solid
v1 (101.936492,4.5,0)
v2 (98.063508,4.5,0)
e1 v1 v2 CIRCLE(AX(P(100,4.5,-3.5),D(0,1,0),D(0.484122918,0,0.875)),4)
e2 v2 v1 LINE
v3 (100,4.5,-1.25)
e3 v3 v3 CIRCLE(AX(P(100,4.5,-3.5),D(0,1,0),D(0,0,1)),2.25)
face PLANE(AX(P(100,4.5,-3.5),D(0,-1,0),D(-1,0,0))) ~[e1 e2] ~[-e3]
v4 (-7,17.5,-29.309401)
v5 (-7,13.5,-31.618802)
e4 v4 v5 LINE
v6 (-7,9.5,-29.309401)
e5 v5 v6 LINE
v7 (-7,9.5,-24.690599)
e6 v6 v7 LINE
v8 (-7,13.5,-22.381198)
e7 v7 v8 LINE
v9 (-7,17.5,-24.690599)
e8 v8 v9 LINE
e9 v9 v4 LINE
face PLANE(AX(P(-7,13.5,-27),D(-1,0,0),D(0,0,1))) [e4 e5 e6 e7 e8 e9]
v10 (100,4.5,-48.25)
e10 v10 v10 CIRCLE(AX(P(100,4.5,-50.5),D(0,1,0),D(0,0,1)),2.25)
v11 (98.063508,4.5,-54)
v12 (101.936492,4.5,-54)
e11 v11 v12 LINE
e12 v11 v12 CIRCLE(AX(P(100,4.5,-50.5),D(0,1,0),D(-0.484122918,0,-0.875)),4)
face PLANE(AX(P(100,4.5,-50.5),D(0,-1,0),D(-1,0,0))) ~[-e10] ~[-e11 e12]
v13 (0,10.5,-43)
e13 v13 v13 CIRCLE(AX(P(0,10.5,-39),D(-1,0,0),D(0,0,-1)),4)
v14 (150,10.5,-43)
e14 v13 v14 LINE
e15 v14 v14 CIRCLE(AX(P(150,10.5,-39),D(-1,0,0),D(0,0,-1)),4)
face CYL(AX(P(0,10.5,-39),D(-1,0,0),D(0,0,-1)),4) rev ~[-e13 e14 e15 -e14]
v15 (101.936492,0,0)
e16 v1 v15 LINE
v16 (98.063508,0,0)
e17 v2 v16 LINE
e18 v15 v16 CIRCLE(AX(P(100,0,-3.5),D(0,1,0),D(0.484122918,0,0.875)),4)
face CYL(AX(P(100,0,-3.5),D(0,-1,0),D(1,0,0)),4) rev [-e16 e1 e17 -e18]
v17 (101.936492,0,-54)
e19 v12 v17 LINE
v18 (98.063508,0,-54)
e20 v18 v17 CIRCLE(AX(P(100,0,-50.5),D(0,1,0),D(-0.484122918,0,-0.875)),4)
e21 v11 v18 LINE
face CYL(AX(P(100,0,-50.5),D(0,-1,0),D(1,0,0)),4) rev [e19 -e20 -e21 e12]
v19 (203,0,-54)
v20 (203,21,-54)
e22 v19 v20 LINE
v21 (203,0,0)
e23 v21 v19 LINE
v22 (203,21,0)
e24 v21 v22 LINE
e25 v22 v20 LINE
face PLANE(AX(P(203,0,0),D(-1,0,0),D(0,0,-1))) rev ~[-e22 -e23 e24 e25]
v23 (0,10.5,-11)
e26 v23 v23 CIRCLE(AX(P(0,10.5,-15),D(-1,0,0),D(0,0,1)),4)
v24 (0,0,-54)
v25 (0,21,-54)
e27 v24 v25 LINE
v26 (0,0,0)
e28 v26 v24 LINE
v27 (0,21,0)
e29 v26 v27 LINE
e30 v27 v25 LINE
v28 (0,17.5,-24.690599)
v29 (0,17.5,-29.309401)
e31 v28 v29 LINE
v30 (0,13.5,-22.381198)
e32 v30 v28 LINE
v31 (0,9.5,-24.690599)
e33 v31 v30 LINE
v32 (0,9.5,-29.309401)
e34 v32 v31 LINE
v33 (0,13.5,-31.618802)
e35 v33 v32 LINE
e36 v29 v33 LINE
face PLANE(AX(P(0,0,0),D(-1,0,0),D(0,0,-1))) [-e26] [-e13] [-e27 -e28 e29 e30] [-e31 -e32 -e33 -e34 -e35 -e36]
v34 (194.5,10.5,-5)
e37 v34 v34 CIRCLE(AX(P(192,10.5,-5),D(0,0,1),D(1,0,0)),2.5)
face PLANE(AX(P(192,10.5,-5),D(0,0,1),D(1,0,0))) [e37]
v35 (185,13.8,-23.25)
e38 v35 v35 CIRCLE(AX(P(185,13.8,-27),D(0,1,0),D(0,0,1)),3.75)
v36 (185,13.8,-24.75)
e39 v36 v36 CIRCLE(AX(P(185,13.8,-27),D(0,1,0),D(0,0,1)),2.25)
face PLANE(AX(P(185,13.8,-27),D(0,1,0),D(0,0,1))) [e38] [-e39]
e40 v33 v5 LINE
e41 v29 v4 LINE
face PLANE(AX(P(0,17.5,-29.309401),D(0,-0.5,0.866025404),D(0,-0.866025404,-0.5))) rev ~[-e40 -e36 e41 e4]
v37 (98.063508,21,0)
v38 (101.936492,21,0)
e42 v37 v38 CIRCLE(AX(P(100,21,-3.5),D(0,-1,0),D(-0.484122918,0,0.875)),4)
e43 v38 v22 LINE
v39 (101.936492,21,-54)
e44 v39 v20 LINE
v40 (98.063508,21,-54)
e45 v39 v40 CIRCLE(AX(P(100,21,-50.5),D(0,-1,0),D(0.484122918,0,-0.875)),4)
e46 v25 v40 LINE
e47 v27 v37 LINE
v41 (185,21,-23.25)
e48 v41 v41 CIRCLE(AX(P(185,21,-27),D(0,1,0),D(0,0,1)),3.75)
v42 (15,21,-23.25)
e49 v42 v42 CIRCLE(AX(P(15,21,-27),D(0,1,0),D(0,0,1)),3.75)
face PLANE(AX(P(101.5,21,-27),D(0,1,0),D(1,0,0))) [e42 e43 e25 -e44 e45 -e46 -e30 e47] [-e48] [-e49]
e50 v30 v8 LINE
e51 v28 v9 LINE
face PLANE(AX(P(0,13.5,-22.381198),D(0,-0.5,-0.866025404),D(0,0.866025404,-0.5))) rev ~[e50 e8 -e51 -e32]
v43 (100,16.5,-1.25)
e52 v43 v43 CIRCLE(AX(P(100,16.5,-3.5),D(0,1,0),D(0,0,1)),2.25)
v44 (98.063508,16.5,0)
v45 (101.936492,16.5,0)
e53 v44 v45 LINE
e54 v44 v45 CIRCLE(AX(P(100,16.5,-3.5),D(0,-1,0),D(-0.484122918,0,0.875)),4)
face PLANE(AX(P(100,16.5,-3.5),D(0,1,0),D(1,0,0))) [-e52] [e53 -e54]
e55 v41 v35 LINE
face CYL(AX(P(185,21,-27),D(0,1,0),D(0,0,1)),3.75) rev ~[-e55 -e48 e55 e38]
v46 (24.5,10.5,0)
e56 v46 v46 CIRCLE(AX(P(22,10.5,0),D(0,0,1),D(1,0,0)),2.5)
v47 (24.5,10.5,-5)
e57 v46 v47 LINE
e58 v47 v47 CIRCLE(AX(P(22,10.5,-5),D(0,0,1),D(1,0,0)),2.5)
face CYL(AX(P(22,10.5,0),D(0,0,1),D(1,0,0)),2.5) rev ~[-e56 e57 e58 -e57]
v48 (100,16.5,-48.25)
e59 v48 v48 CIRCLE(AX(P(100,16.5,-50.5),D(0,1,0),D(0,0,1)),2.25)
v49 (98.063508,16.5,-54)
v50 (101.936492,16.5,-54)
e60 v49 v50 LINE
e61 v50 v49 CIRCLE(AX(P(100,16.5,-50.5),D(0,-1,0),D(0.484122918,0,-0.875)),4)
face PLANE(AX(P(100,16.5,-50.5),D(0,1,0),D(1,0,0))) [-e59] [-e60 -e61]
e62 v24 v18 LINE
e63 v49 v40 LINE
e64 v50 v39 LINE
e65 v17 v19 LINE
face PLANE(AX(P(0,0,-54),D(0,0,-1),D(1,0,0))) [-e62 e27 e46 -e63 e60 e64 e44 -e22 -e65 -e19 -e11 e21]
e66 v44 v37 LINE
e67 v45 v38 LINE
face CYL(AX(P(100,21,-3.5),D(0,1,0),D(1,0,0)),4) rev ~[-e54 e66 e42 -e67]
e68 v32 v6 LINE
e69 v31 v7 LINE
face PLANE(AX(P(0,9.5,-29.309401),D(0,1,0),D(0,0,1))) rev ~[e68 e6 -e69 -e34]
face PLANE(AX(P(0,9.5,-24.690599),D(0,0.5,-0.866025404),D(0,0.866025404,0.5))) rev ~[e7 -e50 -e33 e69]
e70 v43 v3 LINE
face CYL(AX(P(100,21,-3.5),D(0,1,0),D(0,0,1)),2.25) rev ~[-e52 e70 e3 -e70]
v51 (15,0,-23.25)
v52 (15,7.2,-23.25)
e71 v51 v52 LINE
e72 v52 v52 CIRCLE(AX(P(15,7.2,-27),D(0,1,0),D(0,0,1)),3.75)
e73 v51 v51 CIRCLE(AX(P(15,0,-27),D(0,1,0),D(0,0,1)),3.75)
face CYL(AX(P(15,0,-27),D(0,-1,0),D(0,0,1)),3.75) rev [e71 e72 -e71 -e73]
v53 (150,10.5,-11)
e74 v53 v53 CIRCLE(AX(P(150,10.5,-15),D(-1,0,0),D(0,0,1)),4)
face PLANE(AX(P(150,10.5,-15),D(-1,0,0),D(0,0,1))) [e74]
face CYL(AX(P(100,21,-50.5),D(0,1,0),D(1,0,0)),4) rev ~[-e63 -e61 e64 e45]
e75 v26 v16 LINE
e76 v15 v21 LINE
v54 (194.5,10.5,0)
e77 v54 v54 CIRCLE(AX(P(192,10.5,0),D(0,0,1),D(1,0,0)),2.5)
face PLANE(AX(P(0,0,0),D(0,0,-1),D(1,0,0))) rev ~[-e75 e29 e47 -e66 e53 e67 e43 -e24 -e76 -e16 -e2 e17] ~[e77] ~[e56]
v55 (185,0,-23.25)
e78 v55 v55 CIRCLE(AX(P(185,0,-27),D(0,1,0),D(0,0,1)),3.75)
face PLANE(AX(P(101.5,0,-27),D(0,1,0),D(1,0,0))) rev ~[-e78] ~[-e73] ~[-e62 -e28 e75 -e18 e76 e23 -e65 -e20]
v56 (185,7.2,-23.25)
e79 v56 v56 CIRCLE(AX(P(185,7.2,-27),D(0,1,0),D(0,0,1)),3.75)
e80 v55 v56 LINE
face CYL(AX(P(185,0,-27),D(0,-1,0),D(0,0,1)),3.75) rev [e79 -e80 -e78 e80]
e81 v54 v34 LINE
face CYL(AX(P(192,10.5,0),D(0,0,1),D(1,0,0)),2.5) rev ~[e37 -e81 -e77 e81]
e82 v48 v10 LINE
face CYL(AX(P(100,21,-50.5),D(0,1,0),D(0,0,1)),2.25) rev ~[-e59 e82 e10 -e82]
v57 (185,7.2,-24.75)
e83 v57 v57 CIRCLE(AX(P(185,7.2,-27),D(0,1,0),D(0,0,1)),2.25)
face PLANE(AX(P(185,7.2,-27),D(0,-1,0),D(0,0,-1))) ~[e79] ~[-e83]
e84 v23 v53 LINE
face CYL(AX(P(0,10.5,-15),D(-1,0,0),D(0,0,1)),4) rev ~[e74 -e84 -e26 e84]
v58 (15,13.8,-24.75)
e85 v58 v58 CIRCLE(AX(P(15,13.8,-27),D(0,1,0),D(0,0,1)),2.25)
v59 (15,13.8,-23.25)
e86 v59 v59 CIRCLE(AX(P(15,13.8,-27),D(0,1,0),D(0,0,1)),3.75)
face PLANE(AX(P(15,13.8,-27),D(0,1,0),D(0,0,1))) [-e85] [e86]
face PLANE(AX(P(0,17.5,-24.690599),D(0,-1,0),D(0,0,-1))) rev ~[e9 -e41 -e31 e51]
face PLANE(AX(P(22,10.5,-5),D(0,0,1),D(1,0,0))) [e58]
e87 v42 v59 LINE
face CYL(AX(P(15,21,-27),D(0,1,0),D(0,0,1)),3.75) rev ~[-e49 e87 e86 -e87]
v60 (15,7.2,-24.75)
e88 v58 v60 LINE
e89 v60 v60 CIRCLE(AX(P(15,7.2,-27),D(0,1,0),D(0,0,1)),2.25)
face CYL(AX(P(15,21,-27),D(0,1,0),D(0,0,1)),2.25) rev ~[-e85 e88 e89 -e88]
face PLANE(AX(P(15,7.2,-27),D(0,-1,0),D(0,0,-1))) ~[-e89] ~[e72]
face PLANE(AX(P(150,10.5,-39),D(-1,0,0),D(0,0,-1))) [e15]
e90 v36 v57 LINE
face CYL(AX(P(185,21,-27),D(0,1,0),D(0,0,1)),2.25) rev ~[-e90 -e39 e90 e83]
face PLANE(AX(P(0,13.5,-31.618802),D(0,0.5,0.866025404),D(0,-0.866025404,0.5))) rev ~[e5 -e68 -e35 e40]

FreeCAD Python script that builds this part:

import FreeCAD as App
import Part
import Sketcher
from FreeCAD import Vector
Q = App.Units.Quantity

doc = App.newDocument("Part")
body = doc.addObject("PartDesign::Body", "Body")

# Sketch on XZ plane
sketch1 = doc.addObject("Sketcher::SketchObject", "Sketch")
body.addObject(sketch1)
sketch1.AttachmentSupport = (doc.XZ_Plane, [""])
sketch1.MapMode = "FlatFace"
sketch1.addGeometry([
    Part.LineSegment(Vector(0, -54, 0), Vector(0, 0, 0)),
    Part.LineSegment(Vector(0, 0, 0), Vector(203, 0, 0)),
    Part.LineSegment(Vector(203, 0, 0), Vector(203, -54, 0)),
    Part.LineSegment(Vector(203, -54, 0), Vector(0, -54, 0)),
], False)
sketch1.addConstraint([
    Sketcher.Constraint("Coincident", 0, 2, 1, 1),
    Sketcher.Constraint("Coincident", 1, 2, 2, 1),
    Sketcher.Constraint("Coincident", 2, 2, 3, 1),
    Sketcher.Constraint("Coincident", 3, 2, 0, 1),
    Sketcher.Constraint("Vertical", 0),
    Sketcher.Constraint("Horizontal", 1),
    Sketcher.Constraint("Vertical", 2),
    Sketcher.Constraint("Horizontal", 3),
    Sketcher.Constraint("Coincident", 0, 2, -1, 1),
    Sketcher.Constraint("DistanceX", 1, 1, 1, 2, Q("203 mm")),
    Sketcher.Constraint("DistanceY", 0, 1, 0, 2, Q("54 mm")),
])
pad1 = doc.addObject("PartDesign::Pad", "Pad")
body.addObject(pad1)
pad1.Profile = sketch1
pad1.Length = 21
pad1.Reversed = True

# Sketch on YZ plane
sketch2 = doc.addObject("Sketcher::SketchObject", "Sketch001")
body.addObject(sketch2)
sketch2.AttachmentSupport = (doc.YZ_Plane, [""])
sketch2.MapMode = "FlatFace"
sketch2.addGeometry([
    Part.Circle(Vector(10.5, -15, 0), Vector(0, 0, 1), 4),
    Part.Circle(Vector(10.5, -39, 0), Vector(0, 0, 1), 4),
], False)
sketch2.addConstraint([
    Sketcher.Constraint("Equal", 0, 1),
    Sketcher.Constraint("Vertical", 0, 3, 1, 3),
    Sketcher.Constraint("Diameter", 0, Q("8 mm")),
    Sketcher.Constraint("DistanceY", 0, 3, -1, 1, Q("15 mm")),
    Sketcher.Constraint("DistanceY", 1, 3, -1, 1, Q("39 mm")),
    Sketcher.Constraint("DistanceX", -1, 1, 0, 3, Q("10.5 mm")),
])
pocket1 = doc.addObject("PartDesign::Pocket", "Pocket")
body.addObject(pocket1)
pocket1.Profile = sketch2
pocket1.Length = 150
pocket1.Reversed = True

# Sketch on XZ plane
sketch3 = doc.addObject("Sketcher::SketchObject", "Sketch002")
body.addObject(sketch3)
sketch3.AttachmentSupport = (doc.XZ_Plane, [""])
sketch3.MapMode = "FlatFace"
sketch3.AttachmentOffset = App.Placement(Vector(0, 0, -21), App.Rotation())
sketch3.addGeometry([
    Part.Circle(Vector(100, -3.5, 0), Vector(0, 0, 1), 2.25),
    Part.Circle(Vector(100, -50.5, 0), Vector(0, 0, 1), 2.25),
    Part.Circle(Vector(15, -27, 0), Vector(0, 0, 1), 2.25),
    Part.Circle(Vector(185, -27, 0), Vector(0, 0, 1), 2.25),
], False)
sketch3.addConstraint([
    Sketcher.Constraint("Equal", 0, 1),
    Sketcher.Constraint("Equal", 1, 2),
    Sketcher.Constraint("Equal", 2, 3),
    Sketcher.Constraint("Horizontal", 2, 3, 3, 3),
    Sketcher.Constraint("Vertical", 0, 3, 1, 3),
    Sketcher.Constraint("Diameter", 0, Q("4.5 mm")),
    Sketcher.Constraint("DistanceX", -1, 1, 0, 3, Q("100 mm")),
    Sketcher.Constraint("DistanceX", -1, 1, 2, 3, Q("15 mm")),
    Sketcher.Constraint("DistanceY", 2, 3, -1, 1, Q("27 mm")),
    Sketcher.Constraint("DistanceX", -1, 1, 3, 3, Q("185 mm")),
    Sketcher.Constraint("DistanceY", 1, 3, 0, 3, Q("47 mm")),
    Sketcher.Constraint("DistanceY", 0, 3, -1, 1, Q("3.5 mm")),
])
pocket2 = doc.addObject("PartDesign::Pocket", "Pocket001")
body.addObject(pocket2)
pocket2.Profile = sketch3
pocket2.Type = "ThroughAll"
pocket2.Reversed = True

# Sketch on XZ plane
sketch4 = doc.addObject("Sketcher::SketchObject", "Sketch003")
body.addObject(sketch4)
sketch4.AttachmentSupport = (doc.XZ_Plane, [""])
sketch4.MapMode = "FlatFace"
sketch4.AttachmentOffset = App.Placement(Vector(0, 0, -21), App.Rotation())
sketch4.addGeometry([
    Part.Circle(Vector(100, -50.5, 0), Vector(0, 0, 1), 4),
    Part.Circle(Vector(100, -3.5, 0), Vector(0, 0, 1), 4),
], False)
sketch4.addConstraint([
    Sketcher.Constraint("Equal", 0, 1),
    Sketcher.Constraint("Vertical", 0, 3, 1, 3),
    Sketcher.Constraint("Diameter", 0, Q("8 mm")),
    Sketcher.Constraint("DistanceX", -1, 1, 0, 3, Q("100 mm")),
    Sketcher.Constraint("DistanceY", 0, 3, 1, 3, Q("47 mm")),
    Sketcher.Constraint("DistanceY", 0, 3, -1, 1, Q("50.5 mm")),
])
pocket3 = doc.addObject("PartDesign::Pocket", "Pocket002")
body.addObject(pocket3)
pocket3.Profile = sketch4
pocket3.Length = 4.5
pocket3.Reversed = True

# Sketch on XZ plane
sketch5 = doc.addObject("Sketcher::SketchObject", "Sketch004")
body.addObject(sketch5)
sketch5.AttachmentSupport = (doc.XZ_Plane, [""])
sketch5.MapMode = "FlatFace"
sketch5.AttachmentOffset = App.Placement(Vector(0, 0, -21), App.Rotation())
sketch5.addGeometry([
    Part.Circle(Vector(185, -27, 0), Vector(0, 0, 1), 3.75),
    Part.Circle(Vector(15, -27, 0), Vector(0, 0, 1), 3.75),
], False)
sketch5.addConstraint([
    Sketcher.Constraint("Equal", 0, 1),
    Sketcher.Constraint("Horizontal", 0, 3, 1, 3),
    Sketcher.Constraint("Diameter", 0, Q("7.5 mm")),
    Sketcher.Constraint("DistanceX", -1, 1, 0, 3, Q("185 mm")),
    Sketcher.Constraint("DistanceY", 0, 3, -1, 1, Q("27 mm")),
    Sketcher.Constraint("DistanceX", -1, 1, 1, 3, Q("15 mm")),
])
pocket4 = doc.addObject("PartDesign::Pocket", "Pocket003")
body.addObject(pocket4)
pocket4.Profile = sketch5
pocket4.Length = 7.2
pocket4.Reversed = True
doc.recompute()

datumplane = doc.addObject("PartDesign::Plane", "DatumPlane")
body.addObject(datumplane)
datumplane.AttachmentSupport = (doc.XZ_Plane, [""])
datumplane.MapMode = "FlatFace"
datumplane.AttachmentOffset = App.Placement(Vector(0, 0, -10.5), App.Rotation())
mirrored = doc.addObject("PartDesign::Mirrored", "Mirrored")
body.addObject(mirrored)
mirrored.Originals = [pocket3, pocket4]
mirrored.MirrorPlane = (datumplane, [""])
body.Tip = mirrored

# Sketch on XY plane
sketch6 = doc.addObject("Sketcher::SketchObject", "Sketch005")
body.addObject(sketch6)
sketch6.AttachmentSupport = (doc.XY_Plane, [""])
sketch6.MapMode = "FlatFace"
sketch6.addGeometry([
    Part.Circle(Vector(22, 10.5, 0), Vector(0, 0, 1), 2.5),
    Part.Circle(Vector(192, 10.5, 0), Vector(0, 0, 1), 2.5),
], False)
sketch6.addConstraint([
    Sketcher.Constraint("Equal", 0, 1),
    Sketcher.Constraint("Horizontal", 0, 3, 1, 3),
    Sketcher.Constraint("Diameter", 0, Q("5 mm")),
    Sketcher.Constraint("DistanceX", -1, 1, 0, 3, Q("22 mm")),
    Sketcher.Constraint("DistanceX", -1, 1, 1, 3, Q("192 mm")),
    Sketcher.Constraint("DistanceY", -1, 1, 0, 3, Q("10.5 mm")),
])
pocket5 = doc.addObject("PartDesign::Pocket", "Pocket004")
body.addObject(pocket5)
pocket5.Profile = sketch6
pocket5.Length = 5

# Sketch on YZ plane
sketch7 = doc.addObject("Sketcher::SketchObject", "Sketch006")
body.addObject(sketch7)
sketch7.AttachmentSupport = (doc.YZ_Plane, [""])
sketch7.MapMode = "FlatFace"
sketch7.addGeometry([
    Part.LineSegment(Vector(17.5, -24.690599, 0), Vector(17.5, -29.309401, 0)),  # 0
    Part.LineSegment(Vector(17.5, -29.309401, 0), Vector(13.5, -31.618802, 0)),  # 1
    Part.LineSegment(Vector(13.5, -31.618802, 0), Vector(9.5, -29.309401, 0)),  # 2
    Part.LineSegment(Vector(9.5, -29.309401, 0), Vector(9.5, -24.690599, 0)),  # 3
    Part.LineSegment(Vector(9.5, -24.690599, 0), Vector(13.5, -22.381198, 0)),  # 4
    Part.LineSegment(Vector(13.5, -22.381198, 0), Vector(17.5, -24.690599, 0)),  # 5
], False)
sketch7.addConstraint([
    Sketcher.Constraint("Coincident", 0, 2, 1, 1),
    Sketcher.Constraint("Coincident", 1, 2, 2, 1),
    Sketcher.Constraint("Coincident", 2, 2, 3, 1),
    Sketcher.Constraint("Coincident", 3, 2, 4, 1),
    Sketcher.Constraint("Coincident", 4, 2, 5, 1),
    Sketcher.Constraint("Coincident", 5, 2, 0, 1),
    Sketcher.Constraint("Vertical", 0),
    Sketcher.Constraint("Vertical", 3),
    Sketcher.Constraint("Parallel", 1, 4),
    Sketcher.Constraint("Parallel", 2, 5),
    Sketcher.Constraint("Horizontal", 0, 2, 2, 2),
    Sketcher.Constraint("Horizontal", 3, 2, 5, 2),
    Sketcher.Constraint("Vertical", 1, 2, 4, 2),
    Sketcher.Constraint("Angle", 1, Q("-150 deg")),
    Sketcher.Constraint("DistanceX", 1, 2, 0, 2, Q("4 mm")),
    Sketcher.Constraint("DistanceX", -1, 1, 0, 2, Q("17.5 mm")),
    Sketcher.Constraint("DistanceY", 0, 2, -1, 1, Q("29.309401 mm")),
    Sketcher.Constraint("DistanceY", 3, 2, -1, 1, Q("24.690599 mm")),
])
pad2 = doc.addObject("PartDesign::Pad", "Pad001")
body.addObject(pad2)
pad2.Profile = sketch7
pad2.Length = 7
pad2.Reversed = True

doc.recompute()
